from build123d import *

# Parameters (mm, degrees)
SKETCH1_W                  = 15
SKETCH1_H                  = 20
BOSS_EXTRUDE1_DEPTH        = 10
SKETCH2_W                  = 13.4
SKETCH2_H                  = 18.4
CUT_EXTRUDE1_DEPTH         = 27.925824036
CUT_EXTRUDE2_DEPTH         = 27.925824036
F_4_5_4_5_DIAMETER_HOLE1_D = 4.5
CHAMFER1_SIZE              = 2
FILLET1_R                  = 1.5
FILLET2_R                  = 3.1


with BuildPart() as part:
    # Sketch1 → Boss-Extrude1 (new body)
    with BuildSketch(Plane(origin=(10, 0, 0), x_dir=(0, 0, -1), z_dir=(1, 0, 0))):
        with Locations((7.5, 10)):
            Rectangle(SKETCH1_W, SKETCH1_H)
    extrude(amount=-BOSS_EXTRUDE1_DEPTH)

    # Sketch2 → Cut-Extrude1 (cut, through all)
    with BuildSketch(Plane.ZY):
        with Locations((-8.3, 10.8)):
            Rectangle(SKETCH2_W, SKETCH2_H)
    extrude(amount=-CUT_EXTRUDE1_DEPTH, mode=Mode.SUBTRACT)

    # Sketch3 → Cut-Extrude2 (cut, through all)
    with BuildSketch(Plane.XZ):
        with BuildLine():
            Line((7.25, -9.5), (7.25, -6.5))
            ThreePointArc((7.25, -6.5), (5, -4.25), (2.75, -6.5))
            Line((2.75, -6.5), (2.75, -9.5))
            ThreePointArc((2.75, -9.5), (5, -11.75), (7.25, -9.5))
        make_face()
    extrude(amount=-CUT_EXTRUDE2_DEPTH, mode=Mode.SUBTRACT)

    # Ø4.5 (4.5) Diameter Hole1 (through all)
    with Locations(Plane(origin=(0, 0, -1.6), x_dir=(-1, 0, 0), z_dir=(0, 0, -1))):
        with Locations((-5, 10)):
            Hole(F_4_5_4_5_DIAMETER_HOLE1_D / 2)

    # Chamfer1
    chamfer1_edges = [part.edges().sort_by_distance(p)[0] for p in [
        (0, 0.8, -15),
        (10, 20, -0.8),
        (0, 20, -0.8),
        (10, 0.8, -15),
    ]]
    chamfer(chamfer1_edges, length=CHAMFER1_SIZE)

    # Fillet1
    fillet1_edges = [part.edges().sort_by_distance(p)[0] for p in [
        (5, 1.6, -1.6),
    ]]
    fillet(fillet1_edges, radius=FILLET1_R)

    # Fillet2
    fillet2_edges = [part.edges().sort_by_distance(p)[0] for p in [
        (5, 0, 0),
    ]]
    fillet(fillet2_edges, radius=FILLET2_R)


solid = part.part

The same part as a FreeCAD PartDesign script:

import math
import FreeCAD as App
import Part
import Sketcher
from FreeCAD import Vector
Q = App.Units.Quantity


def edges_at(feature, points):
    """Names of the edges that pass closest to the given points."""
    edges = feature.Shape.Edges
    near = lambda p: min(range(len(edges)), key=lambda i: edges[i].distToShape(Part.Vertex(*p))[0])
    return sorted({f"Edge{near(p) + 1}" for p in points})


def add_polygon(sketch, points):
    """Adds a closed chain of lines whose ends are joined by coincident constraints."""
    first, n = sketch.GeometryCount, len(points)
    for a, b in zip(points, points[1:] + points[:1]):
        sketch.addGeometry(Part.LineSegment(App.Vector(*a, 0), App.Vector(*b, 0)), False)
    for i in range(n):
        sketch.addConstraint(Sketcher.Constraint("Coincident", first + i, 2, first + (i + 1) % n, 1))

doc = App.newDocument("Part")
body = doc.addObject("PartDesign::Body", "Body")

# Sketch on YZ plane
sketch1 = body.newObject("Sketcher::SketchObject", "Sketch")
sketch1.AttachmentSupport = (doc.getObject("YZ_Plane"), [""])
sketch1.MapMode = "FlatFace"
sketch1.AttachmentOffset = App.Placement(Vector(0, 0, 10), App.Rotation())
add_polygon(sketch1, [(20, 0), (0, 0), (0, -15), (20, -15)])  # lines 0-3
sketch1.addConstraint(Sketcher.Constraint("Horizontal", 0))
sketch1.addConstraint(Sketcher.Constraint("Vertical", 1))
sketch1.addConstraint(Sketcher.Constraint("Horizontal", 2))
sketch1.addConstraint(Sketcher.Constraint("Vertical", 3))
sketch1.addConstraint(Sketcher.Constraint("Coincident", 0, 2, -1, 1))
sketch1.addConstraint(Sketcher.Constraint("DistanceX", 0, 2, 0, 1, Q("20 mm")))
sketch1.addConstraint(Sketcher.Constraint("DistanceY", 1, 2, 1, 1, Q("15 mm")))
pad1 = body.newObject("PartDesign::Pad", "Pad")
pad1.Profile = sketch1
pad1.Length = 10
pad1.Reversed = True

# Sketch on YZ plane
sketch2 = body.newObject("Sketcher::SketchObject", "Sketch001")
sketch2.AttachmentSupport = (doc.getObject("YZ_Plane"), [""])
sketch2.MapMode = "FlatFace"
add_polygon(sketch2, [(20, -15), (1.6, -15), (1.6, -1.6), (20, -1.6)])  # lines 0-3
sketch2.addConstraint(Sketcher.Constraint("Horizontal", 0))
sketch2.addConstraint(Sketcher.Constraint("Vertical", 1))
sketch2.addConstraint(Sketcher.Constraint("Horizontal", 2))
sketch2.addConstraint(Sketcher.Constraint("Vertical", 3))
sketch2.addConstraint(Sketcher.Constraint("DistanceX", 0, 2, 0, 1, Q("18.4 mm")))
sketch2.addConstraint(Sketcher.Constraint("DistanceY", 1, 1, 1, 2, Q("13.4 mm")))
sketch2.addConstraint(Sketcher.Constraint("DistanceY", 0, 2, -1, 1, Q("15 mm")))
sketch2.addConstraint(Sketcher.Constraint("DistanceX", -1, 1, 2, 2, Q("20 mm")))
pocket1 = body.newObject("PartDesign::Pocket", "Pocket")
pocket1.Profile = sketch2
pocket1.Type = "ThroughAll"
pocket1.Reversed = True

# Sketch on XZ plane
sketch3 = body.newObject("Sketcher::SketchObject", "Sketch002")
sketch3.AttachmentSupport = (doc.getObject("XZ_Plane"), [""])
sketch3.MapMode = "FlatFace"
sketch3.addGeometry(Part.LineSegment(Vector(7.25, -9.5, 0), Vector(7.25, -6.5, 0)), False)
sketch3.addGeometry(Part.ArcOfCircle(Part.Circle(Vector(5, -6.5, 0), Vector(0, 0, 1), 2.25), math.radians(0), math.radians(180)), False)
sketch3.addGeometry(Part.LineSegment(Vector(2.75, -6.5, 0), Vector(2.75, -9.5, 0)), False)
sketch3.addGeometry(Part.ArcOfCircle(Part.Circle(Vector(5, -9.5, 0), Vector(0, 0, 1), 2.25), math.radians(180), math.radians(360)), False)
sketch3.addConstraint(Sketcher.Constraint("Tangent", 0, 2, 1, 1))
sketch3.addConstraint(Sketcher.Constraint("Tangent", 1, 2, 2, 1))
sketch3.addConstraint(Sketcher.Constraint("Tangent", 2, 2, 3, 1))
sketch3.addConstraint(Sketcher.Constraint("Tangent", 3, 2, 0, 1))
sketch3.addConstraint(Sketcher.Constraint("Vertical", 0))
sketch3.addConstraint(Sketcher.Constraint("Vertical", 2))
sketch3.addConstraint(Sketcher.Constraint("DistanceY", 0, 1, 0, 2, Q("3 mm")))
sketch3.addConstraint(Sketcher.Constraint("Radius", 1, Q("2.25 mm")))
sketch3.addConstraint(Sketcher.Constraint("DistanceX", -1, 1, 1, 3, Q("5 mm")))
sketch3.addConstraint(Sketcher.Constraint("DistanceY", 1, 3, -1, 1, Q("6.5 mm")))
pocket2 = body.newObject("PartDesign::Pocket", "Pocket001")
pocket2.Profile = sketch3
pocket2.Type = "ThroughAll"

# Sketch on XY plane
sketch4 = body.newObject("Sketcher::SketchObject", "Sketch003")
sketch4.AttachmentSupport = (doc.getObject("XY_Plane"), [""])
sketch4.MapMode = "FlatFace"
sketch4.AttachmentOffset = App.Placement(Vector(0, 0, -1.6), App.Rotation())
sketch4.addGeometry(Part.Circle(Vector(5, 10, 0), Vector(0, 0, 1), 2.25), False)
sketch4.addConstraint(Sketcher.Constraint("Diameter", 0, Q("4.5 mm")))
sketch4.addConstraint(Sketcher.Constraint("DistanceX", -1, 1, 0, 3, Q("5 mm")))
sketch4.addConstraint(Sketcher.Constraint("DistanceY", -1, 1, 0, 3, Q("10 mm")))
doc.recompute()
hole = body.newObject("PartDesign::Hole", "Hole")
hole.Profile = sketch4
hole.ThreadType = "None"
hole.Diameter = 4.5
hole.DepthType = "ThroughAll"
hole.Reversed = True
doc.recompute()

chamfer = body.newObject("PartDesign::Chamfer", "Chamfer")
chamfer.Base = (hole, edges_at(hole, [
    (0, 0.8, -15),
    (10, 20, -0.8),
    (0, 20, -0.8),
    (10, 0.8, -15),
]))
chamfer.Size = 2
doc.recompute()

fillet = body.newObject("PartDesign::Fillet", "Fillet")
fillet.Base = (chamfer, edges_at(chamfer, [(5, 1.6, -1.6)]))
fillet.Radius = 1.5
doc.recompute()

fillet2 = body.newObject("PartDesign::Fillet", "Fillet001")
fillet2.Base = (fillet, edges_at(fillet, [(5, 0, 0)]))
fillet2.Radius = 3.1

doc.recompute()
